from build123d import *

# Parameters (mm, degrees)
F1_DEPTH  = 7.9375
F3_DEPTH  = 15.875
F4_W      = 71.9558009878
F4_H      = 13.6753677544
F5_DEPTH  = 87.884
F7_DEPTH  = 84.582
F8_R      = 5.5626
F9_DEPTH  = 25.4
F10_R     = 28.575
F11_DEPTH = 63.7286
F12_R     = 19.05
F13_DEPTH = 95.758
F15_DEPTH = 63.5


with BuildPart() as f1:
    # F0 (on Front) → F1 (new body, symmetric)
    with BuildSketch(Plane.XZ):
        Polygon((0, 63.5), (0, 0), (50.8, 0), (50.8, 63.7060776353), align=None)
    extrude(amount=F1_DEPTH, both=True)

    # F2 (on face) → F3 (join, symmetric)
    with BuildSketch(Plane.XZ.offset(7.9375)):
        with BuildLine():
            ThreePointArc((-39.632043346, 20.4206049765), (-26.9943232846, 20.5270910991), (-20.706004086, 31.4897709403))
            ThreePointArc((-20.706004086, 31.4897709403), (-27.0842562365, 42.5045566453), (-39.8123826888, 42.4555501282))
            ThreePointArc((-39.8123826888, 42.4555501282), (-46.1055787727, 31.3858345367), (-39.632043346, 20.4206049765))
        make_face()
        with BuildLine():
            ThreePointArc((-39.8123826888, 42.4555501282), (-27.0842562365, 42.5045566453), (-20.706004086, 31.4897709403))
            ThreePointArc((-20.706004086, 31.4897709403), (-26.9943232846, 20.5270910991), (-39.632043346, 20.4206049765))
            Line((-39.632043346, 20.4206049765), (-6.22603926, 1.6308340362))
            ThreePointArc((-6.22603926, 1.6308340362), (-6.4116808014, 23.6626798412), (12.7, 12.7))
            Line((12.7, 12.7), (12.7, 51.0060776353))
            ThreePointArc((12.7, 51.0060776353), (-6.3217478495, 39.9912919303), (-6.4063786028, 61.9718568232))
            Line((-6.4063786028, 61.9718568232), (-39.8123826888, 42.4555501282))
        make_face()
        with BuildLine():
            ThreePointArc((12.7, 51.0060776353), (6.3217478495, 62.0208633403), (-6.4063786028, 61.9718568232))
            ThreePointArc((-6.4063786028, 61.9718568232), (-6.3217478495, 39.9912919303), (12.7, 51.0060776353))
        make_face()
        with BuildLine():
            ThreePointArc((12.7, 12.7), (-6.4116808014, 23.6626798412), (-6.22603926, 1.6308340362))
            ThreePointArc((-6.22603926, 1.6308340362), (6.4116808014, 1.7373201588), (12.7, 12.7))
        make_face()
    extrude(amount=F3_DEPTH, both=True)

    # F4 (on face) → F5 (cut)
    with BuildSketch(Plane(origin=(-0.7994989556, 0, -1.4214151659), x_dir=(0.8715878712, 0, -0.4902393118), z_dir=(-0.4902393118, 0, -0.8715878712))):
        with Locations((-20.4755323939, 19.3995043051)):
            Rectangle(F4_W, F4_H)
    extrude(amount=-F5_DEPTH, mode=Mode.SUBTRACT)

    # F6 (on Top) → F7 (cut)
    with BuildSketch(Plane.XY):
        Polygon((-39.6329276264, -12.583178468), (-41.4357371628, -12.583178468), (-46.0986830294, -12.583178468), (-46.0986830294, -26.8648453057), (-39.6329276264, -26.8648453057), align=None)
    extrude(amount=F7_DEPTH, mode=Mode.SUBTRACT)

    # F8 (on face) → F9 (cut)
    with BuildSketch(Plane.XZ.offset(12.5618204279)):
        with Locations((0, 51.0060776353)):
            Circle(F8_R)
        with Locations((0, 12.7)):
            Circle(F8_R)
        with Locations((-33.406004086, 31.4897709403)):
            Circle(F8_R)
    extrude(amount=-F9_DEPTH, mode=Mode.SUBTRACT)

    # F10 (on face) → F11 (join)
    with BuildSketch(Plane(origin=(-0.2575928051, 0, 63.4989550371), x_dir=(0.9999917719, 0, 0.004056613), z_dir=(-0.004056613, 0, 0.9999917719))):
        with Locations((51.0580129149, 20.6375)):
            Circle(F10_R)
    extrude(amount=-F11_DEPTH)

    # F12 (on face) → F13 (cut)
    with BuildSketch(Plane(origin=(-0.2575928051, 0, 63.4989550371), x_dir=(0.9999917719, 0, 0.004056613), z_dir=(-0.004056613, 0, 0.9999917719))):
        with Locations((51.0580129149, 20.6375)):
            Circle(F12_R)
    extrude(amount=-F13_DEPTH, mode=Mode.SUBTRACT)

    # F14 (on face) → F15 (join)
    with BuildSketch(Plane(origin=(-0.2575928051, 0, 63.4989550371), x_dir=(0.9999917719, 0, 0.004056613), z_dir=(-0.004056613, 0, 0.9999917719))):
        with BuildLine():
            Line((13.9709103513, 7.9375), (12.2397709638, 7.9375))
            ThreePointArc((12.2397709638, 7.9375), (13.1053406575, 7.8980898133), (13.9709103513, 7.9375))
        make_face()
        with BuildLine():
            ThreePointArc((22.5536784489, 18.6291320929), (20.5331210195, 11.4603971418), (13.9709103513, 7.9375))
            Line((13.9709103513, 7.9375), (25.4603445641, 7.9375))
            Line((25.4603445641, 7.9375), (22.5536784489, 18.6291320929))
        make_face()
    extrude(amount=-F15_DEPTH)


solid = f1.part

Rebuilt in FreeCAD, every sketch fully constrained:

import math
import FreeCAD as App
import Part
import Sketcher
Q = App.Units.Quantity


def add_polygon(sketch, points):
    """Adds a closed chain of lines whose ends are joined by coincident constraints."""
    first, n = sketch.GeometryCount, len(points)
    for a, b in zip(points, points[1:] + points[:1]):
        sketch.addGeometry(Part.LineSegment(App.Vector(*a, 0), App.Vector(*b, 0)), False)
    for i in range(n):
        sketch.addConstraint(Sketcher.Constraint("Coincident", first + i, 2, first + (i + 1) % n, 1))

doc = App.newDocument("Part")
body = doc.addObject("PartDesign::Body", "Body")

sketch1 = body.newObject("Sketcher::SketchObject", "Sketch")
sketch1.AttachmentSupport = (doc.getObject("XZ_Plane"), [""])
sketch1.MapMode = "FlatFace"
add_polygon(sketch1, [(0, 64), (0, 0), (51, 0), (51, 64)])
sketch1.addConstraint([
    Sketcher.Constraint("Vertical", 0),
    Sketcher.Constraint("Horizontal", 1),
    Sketcher.Constraint("Vertical", 2),
    Sketcher.Constraint("Coincident", 0, 2, -1, 1),
    Sketcher.Constraint("DistanceX", 1, 1, 1, 2, Q("2 in")),
    Sketcher.Constraint("DistanceY", 0, 2, 0, 1, Q("2.5 in")),
    Sketcher.Constraint("DistanceY", 2, 1, 2, 2, Q("63.706078 mm")),
])
pad1 = body.newObject("PartDesign::Pad", "Pad")
pad1.Profile = sketch1
pad1.Length = Q("0.625 in")
pad1.Midplane = True

sketch2 = body.newObject("Sketcher::SketchObject", "Sketch001")
sketch2.AttachmentSupport = (doc.getObject("XZ_Plane"), [""])
sketch2.MapMode = "FlatFace"
sketch2.AttachmentOffset = App.Placement(App.Vector(0, 0, 0.3125 * 25.4), App.Rotation())
sketch2.addGeometry([
    Part.ArcOfCircle(Part.Circle(App.Vector(-33, 31, 0), App.Vector(0, 0, 1), 13), math.radians(120), math.radians(241)),
    Part.LineSegment(App.Vector(-40, 20, 0), App.Vector(-6, 2, 0)),
    Part.ArcOfCircle(Part.Circle(App.Vector(0, 13, 0), App.Vector(0, 0, 1), 13), math.radians(-119), math.radians(0)),
    Part.LineSegment(App.Vector(13, 13, 0), App.Vector(13, 51, 0)),
    Part.ArcOfCircle(Part.Circle(App.Vector(0, 51, 0), App.Vector(0, 0, 1), 13), math.radians(0), math.radians(120)),
    Part.LineSegment(App.Vector(-6, 62, 0), App.Vector(-40, 42, 0)),
], False)
sketch2.addConstraint([
    Sketcher.Constraint("Tangent", 0, 2, 1, 1),
    Sketcher.Constraint("Tangent", 1, 2, 2, 1),
    Sketcher.Constraint("Tangent", 2, 2, 3, 1),
    Sketcher.Constraint("Tangent", 3, 2, 4, 1),
    Sketcher.Constraint("Tangent", 4, 2, 5, 1),
    Sketcher.Constraint("Tangent", 5, 2, 0, 1),
    Sketcher.Constraint("Vertical", 3),
    Sketcher.Constraint("Equal", 0, 2),
    Sketcher.Constraint("Equal", 2, 4),
    Sketcher.Constraint("PointOnObject", 2, 3, -2),
    Sketcher.Constraint("Radius", 0, Q("0.5 in")),
    Sketcher.Constraint("DistanceY", -1, 1, 2, 3, Q("0.5 in")),
    Sketcher.Constraint("DistanceX", 5, 2, 0, 2, Q("0.0071 in")),
    Sketcher.Constraint("Distance", 5, Q("38.689111 mm")),
    Sketcher.Constraint("DistanceY", 3, 1, 3, 2, Q("38.306078 mm")),
])
pad2 = body.newObject("PartDesign::Pad", "Pad001")
pad2.Profile = sketch2
pad2.Length = Q("1.25 in")
pad2.Midplane = True

sketch3 = body.newObject("Sketcher::SketchObject", "Sketch002")
sketch3.Placement = App.Placement(App.Vector(-0.799499, 0, -1.421415), App.Rotation(App.Vector(0.871587871, 0, -0.490239312), App.Vector(0, -1, 0), App.Vector(-0.490239312, 0, -0.871587871), "ZXY"))
add_polygon(sketch3, [(-56, 26), (-56, 13), (16, 13), (16, 26)])
sketch3.addConstraint([
    Sketcher.Constraint("Vertical", 0),
    Sketcher.Constraint("Horizontal", 1),
    Sketcher.Constraint("Vertical", 2),
    Sketcher.Constraint("Horizontal", 3),
    Sketcher.Constraint("DistanceX", 1, 1, 1, 2, Q("71.955801 mm")),
    Sketcher.Constraint("DistanceY", 0, 2, 0, 1, Q("13.675368 mm")),
    Sketcher.Constraint("DistanceY", -1, 1, 0, 2, Q("12.56182 mm")),
    Sketcher.Constraint("DistanceX", -1, 1, 1, 2, Q("15.502368 mm")),
])
pocket1 = body.newObject("PartDesign::Pocket", "Pocket")
pocket1.Profile = sketch3
pocket1.Length = Q("3.46 in")

sketch4 = body.newObject("Sketcher::SketchObject", "Sketch003")
sketch4.AttachmentSupport = (doc.getObject("XY_Plane"), [""])
sketch4.MapMode = "FlatFace"
add_polygon(sketch4, [(-40, -13), (-46, -13), (-46, -27), (-40, -27)])
sketch4.addConstraint([
    Sketcher.Constraint("Horizontal", 0),
    Sketcher.Constraint("Vertical", 1),
    Sketcher.Constraint("Horizontal", 2),
    Sketcher.Constraint("Vertical", 3),
    Sketcher.Constraint("DistanceX", 0, 2, 0, 1, Q("6.465755 mm")),
    Sketcher.Constraint("DistanceY", 1, 2, 1, 1, Q("14.281667 mm")),
    Sketcher.Constraint("DistanceY", 0, 2, -1, 1, Q("12.583178 mm")),
    Sketcher.Constraint("DistanceX", 0, 2, -1, 1, Q("46.098683 mm")),
])
pocket2 = body.newObject("PartDesign::Pocket", "Pocket001")
pocket2.Profile = sketch4
pocket2.Length = Q("3.33 in")
pocket2.Reversed = True

sketch5 = body.newObject("Sketcher::SketchObject", "Sketch004")
sketch5.AttachmentSupport = (doc.getObject("XZ_Plane"), [""])
sketch5.MapMode = "FlatFace"
sketch5.AttachmentOffset = App.Placement(App.Vector(0, 0, 12.56182), App.Rotation())
sketch5.addGeometry([
    Part.Circle(App.Vector(0, 51, 0), App.Vector(0, 0, 1), 6),
    Part.Circle(App.Vector(0, 13, 0), App.Vector(0, 0, 1), 6),
    Part.Circle(App.Vector(-33, 31, 0), App.Vector(0, 0, 1), 6),
], False)
sketch5.addConstraint([
    Sketcher.Constraint("Equal", 0, 1),
    Sketcher.Constraint("Equal", 1, 2),
    Sketcher.Constraint("PointOnObject", 0, 3, -2),
    Sketcher.Constraint("PointOnObject", 1, 3, -2),
    Sketcher.Constraint("Diameter", 0, Q("0.438 in")),
    Sketcher.Constraint("DistanceY", -1, 1, 1, 3, Q("0.5 in")),
    Sketcher.Constraint("DistanceY", -1, 1, 2, 3, Q("31.489771 mm")),
    Sketcher.Constraint("DistanceY", -1, 1, 0, 3, Q("51.006078 mm")),
    Sketcher.Constraint("DistanceX", 2, 3, -1, 1, Q("33.406004 mm")),
])
pocket3 = body.newObject("PartDesign::Pocket", "Pocket002")
pocket3.Profile = sketch5
pocket3.Length = Q("1 in")

sketch6 = body.newObject("Sketcher::SketchObject", "Sketch005")
sketch6.Placement = App.Placement(App.Vector(-0.257593, 0, 63.498955), App.Rotation(App.Vector(0.999991772, 0, 0.004056613), App.Vector(0, 1, 0), App.Vector(-0.004056613, 0, 0.999991772), "ZXY"))
sketch6.addGeometry(Part.Circle(App.Vector(51, 21, 0), App.Vector(0, 0, 1), 29), False)
sketch6.addConstraint([
    Sketcher.Constraint("Diameter", 0, Q("2.25 in")),
    Sketcher.Constraint("DistanceY", -1, 1, 0, 3, Q("0.8125 in")),
    Sketcher.Constraint("DistanceX", -1, 1, 0, 3, Q("51.058013 mm")),
])
pad3 = body.newObject("PartDesign::Pad", "Pad002")
pad3.Profile = sketch6
pad3.Length = Q("2.509 in")
pad3.Reversed = True

sketch7 = body.newObject("Sketcher::SketchObject", "Sketch006")
sketch7.Placement = App.Placement(App.Vector(-0.257593, 0, 63.498955), App.Rotation(App.Vector(0.999991772, 0, 0.004056613), App.Vector(0, 1, 0), App.Vector(-0.004056613, 0, 0.999991772), "ZXY"))
sketch7.addGeometry(Part.Circle(App.Vector(51, 21, 0), App.Vector(0, 0, 1), 19), False)
sketch7.addConstraint([
    Sketcher.Constraint("Diameter", 0, Q("1.5 in")),
    Sketcher.Constraint("DistanceY", -1, 1, 0, 3, Q("0.8125 in")),
    Sketcher.Constraint("DistanceX", -1, 1, 0, 3, Q("51.058013 mm")),
])
pocket4 = body.newObject("PartDesign::Pocket", "Pocket003")
pocket4.Profile = sketch7
pocket4.Length = Q("3.77 in")

sketch8 = body.newObject("Sketcher::SketchObject", "Sketch007")
sketch8.Placement = App.Placement(App.Vector(-0.257593, 0, 63.498955), App.Rotation(App.Vector(0.999991772, 0, 0.004056613), App.Vector(0, 1, 0), App.Vector(-0.004056613, 0, 0.999991772), "ZXY"))
sketch8.addGeometry([
    Part.LineSegment(App.Vector(14, 7.9, 0), App.Vector(12.2, 7.9, 0)),
    Part.ArcOfCircle(Part.Circle(App.Vector(13.1, 17.4, 0), App.Vector(0, 0, 1), 9.5), math.radians(-95.21), math.radians(-84.79)),
    Part.ArcOfCircle(Part.Circle(App.Vector(13.1, 17.4, 0), App.Vector(0, 0, 1), 9.5), math.radians(-85), math.radians(7)),
    Part.LineSegment(App.Vector(14, 7.9, 0), App.Vector(25.5, 7.9, 0)),
    Part.LineSegment(App.Vector(25.5, 7.9, 0), App.Vector(22.6, 18.6, 0)),
], False)
sketch8.addConstraint([
    Sketcher.Constraint("Coincident", 0, 1, 1, 2),
    Sketcher.Constraint("Coincident", 1, 1, 0, 2),
    Sketcher.Constraint("Coincident", 2, 1, 3, 1),
    Sketcher.Constraint("Coincident", 3, 2, 4, 1),
    Sketcher.Constraint("Coincident", 4, 2, 2, 2),
    Sketcher.Constraint("Horizontal", 0),
    Sketcher.Constraint("Horizontal", 3),
    Sketcher.Constraint("Coincident", 2, 3, 1, 3),
    Sketcher.Constraint("Coincident", 2, 1, 0, 1),
    Sketcher.Constraint("Radius", 1, Q("0.375 in")),
    Sketcher.Constraint("DistanceY", -1, 1, 0, 1, Q("0.3125 in")),
    Sketcher.Constraint("DistanceX", 0, 2, 0, 1, Q("1.731139 mm")),
    Sketcher.Constraint("DistanceX", 3, 1, 3, 2, Q("11.489434 mm")),
    Sketcher.Constraint("DistanceX", -1, 1, 1, 3, Q("13.105341 mm")),
    Sketcher.Constraint("DistanceX", -1, 1, 4, 2, Q("22.553678 mm")),
])
pad4 = body.newObject("PartDesign::Pad", "Pad003")
pad4.Profile = sketch8
pad4.Length = Q("2.5 in")
pad4.Reversed = True

doc.recompute()
